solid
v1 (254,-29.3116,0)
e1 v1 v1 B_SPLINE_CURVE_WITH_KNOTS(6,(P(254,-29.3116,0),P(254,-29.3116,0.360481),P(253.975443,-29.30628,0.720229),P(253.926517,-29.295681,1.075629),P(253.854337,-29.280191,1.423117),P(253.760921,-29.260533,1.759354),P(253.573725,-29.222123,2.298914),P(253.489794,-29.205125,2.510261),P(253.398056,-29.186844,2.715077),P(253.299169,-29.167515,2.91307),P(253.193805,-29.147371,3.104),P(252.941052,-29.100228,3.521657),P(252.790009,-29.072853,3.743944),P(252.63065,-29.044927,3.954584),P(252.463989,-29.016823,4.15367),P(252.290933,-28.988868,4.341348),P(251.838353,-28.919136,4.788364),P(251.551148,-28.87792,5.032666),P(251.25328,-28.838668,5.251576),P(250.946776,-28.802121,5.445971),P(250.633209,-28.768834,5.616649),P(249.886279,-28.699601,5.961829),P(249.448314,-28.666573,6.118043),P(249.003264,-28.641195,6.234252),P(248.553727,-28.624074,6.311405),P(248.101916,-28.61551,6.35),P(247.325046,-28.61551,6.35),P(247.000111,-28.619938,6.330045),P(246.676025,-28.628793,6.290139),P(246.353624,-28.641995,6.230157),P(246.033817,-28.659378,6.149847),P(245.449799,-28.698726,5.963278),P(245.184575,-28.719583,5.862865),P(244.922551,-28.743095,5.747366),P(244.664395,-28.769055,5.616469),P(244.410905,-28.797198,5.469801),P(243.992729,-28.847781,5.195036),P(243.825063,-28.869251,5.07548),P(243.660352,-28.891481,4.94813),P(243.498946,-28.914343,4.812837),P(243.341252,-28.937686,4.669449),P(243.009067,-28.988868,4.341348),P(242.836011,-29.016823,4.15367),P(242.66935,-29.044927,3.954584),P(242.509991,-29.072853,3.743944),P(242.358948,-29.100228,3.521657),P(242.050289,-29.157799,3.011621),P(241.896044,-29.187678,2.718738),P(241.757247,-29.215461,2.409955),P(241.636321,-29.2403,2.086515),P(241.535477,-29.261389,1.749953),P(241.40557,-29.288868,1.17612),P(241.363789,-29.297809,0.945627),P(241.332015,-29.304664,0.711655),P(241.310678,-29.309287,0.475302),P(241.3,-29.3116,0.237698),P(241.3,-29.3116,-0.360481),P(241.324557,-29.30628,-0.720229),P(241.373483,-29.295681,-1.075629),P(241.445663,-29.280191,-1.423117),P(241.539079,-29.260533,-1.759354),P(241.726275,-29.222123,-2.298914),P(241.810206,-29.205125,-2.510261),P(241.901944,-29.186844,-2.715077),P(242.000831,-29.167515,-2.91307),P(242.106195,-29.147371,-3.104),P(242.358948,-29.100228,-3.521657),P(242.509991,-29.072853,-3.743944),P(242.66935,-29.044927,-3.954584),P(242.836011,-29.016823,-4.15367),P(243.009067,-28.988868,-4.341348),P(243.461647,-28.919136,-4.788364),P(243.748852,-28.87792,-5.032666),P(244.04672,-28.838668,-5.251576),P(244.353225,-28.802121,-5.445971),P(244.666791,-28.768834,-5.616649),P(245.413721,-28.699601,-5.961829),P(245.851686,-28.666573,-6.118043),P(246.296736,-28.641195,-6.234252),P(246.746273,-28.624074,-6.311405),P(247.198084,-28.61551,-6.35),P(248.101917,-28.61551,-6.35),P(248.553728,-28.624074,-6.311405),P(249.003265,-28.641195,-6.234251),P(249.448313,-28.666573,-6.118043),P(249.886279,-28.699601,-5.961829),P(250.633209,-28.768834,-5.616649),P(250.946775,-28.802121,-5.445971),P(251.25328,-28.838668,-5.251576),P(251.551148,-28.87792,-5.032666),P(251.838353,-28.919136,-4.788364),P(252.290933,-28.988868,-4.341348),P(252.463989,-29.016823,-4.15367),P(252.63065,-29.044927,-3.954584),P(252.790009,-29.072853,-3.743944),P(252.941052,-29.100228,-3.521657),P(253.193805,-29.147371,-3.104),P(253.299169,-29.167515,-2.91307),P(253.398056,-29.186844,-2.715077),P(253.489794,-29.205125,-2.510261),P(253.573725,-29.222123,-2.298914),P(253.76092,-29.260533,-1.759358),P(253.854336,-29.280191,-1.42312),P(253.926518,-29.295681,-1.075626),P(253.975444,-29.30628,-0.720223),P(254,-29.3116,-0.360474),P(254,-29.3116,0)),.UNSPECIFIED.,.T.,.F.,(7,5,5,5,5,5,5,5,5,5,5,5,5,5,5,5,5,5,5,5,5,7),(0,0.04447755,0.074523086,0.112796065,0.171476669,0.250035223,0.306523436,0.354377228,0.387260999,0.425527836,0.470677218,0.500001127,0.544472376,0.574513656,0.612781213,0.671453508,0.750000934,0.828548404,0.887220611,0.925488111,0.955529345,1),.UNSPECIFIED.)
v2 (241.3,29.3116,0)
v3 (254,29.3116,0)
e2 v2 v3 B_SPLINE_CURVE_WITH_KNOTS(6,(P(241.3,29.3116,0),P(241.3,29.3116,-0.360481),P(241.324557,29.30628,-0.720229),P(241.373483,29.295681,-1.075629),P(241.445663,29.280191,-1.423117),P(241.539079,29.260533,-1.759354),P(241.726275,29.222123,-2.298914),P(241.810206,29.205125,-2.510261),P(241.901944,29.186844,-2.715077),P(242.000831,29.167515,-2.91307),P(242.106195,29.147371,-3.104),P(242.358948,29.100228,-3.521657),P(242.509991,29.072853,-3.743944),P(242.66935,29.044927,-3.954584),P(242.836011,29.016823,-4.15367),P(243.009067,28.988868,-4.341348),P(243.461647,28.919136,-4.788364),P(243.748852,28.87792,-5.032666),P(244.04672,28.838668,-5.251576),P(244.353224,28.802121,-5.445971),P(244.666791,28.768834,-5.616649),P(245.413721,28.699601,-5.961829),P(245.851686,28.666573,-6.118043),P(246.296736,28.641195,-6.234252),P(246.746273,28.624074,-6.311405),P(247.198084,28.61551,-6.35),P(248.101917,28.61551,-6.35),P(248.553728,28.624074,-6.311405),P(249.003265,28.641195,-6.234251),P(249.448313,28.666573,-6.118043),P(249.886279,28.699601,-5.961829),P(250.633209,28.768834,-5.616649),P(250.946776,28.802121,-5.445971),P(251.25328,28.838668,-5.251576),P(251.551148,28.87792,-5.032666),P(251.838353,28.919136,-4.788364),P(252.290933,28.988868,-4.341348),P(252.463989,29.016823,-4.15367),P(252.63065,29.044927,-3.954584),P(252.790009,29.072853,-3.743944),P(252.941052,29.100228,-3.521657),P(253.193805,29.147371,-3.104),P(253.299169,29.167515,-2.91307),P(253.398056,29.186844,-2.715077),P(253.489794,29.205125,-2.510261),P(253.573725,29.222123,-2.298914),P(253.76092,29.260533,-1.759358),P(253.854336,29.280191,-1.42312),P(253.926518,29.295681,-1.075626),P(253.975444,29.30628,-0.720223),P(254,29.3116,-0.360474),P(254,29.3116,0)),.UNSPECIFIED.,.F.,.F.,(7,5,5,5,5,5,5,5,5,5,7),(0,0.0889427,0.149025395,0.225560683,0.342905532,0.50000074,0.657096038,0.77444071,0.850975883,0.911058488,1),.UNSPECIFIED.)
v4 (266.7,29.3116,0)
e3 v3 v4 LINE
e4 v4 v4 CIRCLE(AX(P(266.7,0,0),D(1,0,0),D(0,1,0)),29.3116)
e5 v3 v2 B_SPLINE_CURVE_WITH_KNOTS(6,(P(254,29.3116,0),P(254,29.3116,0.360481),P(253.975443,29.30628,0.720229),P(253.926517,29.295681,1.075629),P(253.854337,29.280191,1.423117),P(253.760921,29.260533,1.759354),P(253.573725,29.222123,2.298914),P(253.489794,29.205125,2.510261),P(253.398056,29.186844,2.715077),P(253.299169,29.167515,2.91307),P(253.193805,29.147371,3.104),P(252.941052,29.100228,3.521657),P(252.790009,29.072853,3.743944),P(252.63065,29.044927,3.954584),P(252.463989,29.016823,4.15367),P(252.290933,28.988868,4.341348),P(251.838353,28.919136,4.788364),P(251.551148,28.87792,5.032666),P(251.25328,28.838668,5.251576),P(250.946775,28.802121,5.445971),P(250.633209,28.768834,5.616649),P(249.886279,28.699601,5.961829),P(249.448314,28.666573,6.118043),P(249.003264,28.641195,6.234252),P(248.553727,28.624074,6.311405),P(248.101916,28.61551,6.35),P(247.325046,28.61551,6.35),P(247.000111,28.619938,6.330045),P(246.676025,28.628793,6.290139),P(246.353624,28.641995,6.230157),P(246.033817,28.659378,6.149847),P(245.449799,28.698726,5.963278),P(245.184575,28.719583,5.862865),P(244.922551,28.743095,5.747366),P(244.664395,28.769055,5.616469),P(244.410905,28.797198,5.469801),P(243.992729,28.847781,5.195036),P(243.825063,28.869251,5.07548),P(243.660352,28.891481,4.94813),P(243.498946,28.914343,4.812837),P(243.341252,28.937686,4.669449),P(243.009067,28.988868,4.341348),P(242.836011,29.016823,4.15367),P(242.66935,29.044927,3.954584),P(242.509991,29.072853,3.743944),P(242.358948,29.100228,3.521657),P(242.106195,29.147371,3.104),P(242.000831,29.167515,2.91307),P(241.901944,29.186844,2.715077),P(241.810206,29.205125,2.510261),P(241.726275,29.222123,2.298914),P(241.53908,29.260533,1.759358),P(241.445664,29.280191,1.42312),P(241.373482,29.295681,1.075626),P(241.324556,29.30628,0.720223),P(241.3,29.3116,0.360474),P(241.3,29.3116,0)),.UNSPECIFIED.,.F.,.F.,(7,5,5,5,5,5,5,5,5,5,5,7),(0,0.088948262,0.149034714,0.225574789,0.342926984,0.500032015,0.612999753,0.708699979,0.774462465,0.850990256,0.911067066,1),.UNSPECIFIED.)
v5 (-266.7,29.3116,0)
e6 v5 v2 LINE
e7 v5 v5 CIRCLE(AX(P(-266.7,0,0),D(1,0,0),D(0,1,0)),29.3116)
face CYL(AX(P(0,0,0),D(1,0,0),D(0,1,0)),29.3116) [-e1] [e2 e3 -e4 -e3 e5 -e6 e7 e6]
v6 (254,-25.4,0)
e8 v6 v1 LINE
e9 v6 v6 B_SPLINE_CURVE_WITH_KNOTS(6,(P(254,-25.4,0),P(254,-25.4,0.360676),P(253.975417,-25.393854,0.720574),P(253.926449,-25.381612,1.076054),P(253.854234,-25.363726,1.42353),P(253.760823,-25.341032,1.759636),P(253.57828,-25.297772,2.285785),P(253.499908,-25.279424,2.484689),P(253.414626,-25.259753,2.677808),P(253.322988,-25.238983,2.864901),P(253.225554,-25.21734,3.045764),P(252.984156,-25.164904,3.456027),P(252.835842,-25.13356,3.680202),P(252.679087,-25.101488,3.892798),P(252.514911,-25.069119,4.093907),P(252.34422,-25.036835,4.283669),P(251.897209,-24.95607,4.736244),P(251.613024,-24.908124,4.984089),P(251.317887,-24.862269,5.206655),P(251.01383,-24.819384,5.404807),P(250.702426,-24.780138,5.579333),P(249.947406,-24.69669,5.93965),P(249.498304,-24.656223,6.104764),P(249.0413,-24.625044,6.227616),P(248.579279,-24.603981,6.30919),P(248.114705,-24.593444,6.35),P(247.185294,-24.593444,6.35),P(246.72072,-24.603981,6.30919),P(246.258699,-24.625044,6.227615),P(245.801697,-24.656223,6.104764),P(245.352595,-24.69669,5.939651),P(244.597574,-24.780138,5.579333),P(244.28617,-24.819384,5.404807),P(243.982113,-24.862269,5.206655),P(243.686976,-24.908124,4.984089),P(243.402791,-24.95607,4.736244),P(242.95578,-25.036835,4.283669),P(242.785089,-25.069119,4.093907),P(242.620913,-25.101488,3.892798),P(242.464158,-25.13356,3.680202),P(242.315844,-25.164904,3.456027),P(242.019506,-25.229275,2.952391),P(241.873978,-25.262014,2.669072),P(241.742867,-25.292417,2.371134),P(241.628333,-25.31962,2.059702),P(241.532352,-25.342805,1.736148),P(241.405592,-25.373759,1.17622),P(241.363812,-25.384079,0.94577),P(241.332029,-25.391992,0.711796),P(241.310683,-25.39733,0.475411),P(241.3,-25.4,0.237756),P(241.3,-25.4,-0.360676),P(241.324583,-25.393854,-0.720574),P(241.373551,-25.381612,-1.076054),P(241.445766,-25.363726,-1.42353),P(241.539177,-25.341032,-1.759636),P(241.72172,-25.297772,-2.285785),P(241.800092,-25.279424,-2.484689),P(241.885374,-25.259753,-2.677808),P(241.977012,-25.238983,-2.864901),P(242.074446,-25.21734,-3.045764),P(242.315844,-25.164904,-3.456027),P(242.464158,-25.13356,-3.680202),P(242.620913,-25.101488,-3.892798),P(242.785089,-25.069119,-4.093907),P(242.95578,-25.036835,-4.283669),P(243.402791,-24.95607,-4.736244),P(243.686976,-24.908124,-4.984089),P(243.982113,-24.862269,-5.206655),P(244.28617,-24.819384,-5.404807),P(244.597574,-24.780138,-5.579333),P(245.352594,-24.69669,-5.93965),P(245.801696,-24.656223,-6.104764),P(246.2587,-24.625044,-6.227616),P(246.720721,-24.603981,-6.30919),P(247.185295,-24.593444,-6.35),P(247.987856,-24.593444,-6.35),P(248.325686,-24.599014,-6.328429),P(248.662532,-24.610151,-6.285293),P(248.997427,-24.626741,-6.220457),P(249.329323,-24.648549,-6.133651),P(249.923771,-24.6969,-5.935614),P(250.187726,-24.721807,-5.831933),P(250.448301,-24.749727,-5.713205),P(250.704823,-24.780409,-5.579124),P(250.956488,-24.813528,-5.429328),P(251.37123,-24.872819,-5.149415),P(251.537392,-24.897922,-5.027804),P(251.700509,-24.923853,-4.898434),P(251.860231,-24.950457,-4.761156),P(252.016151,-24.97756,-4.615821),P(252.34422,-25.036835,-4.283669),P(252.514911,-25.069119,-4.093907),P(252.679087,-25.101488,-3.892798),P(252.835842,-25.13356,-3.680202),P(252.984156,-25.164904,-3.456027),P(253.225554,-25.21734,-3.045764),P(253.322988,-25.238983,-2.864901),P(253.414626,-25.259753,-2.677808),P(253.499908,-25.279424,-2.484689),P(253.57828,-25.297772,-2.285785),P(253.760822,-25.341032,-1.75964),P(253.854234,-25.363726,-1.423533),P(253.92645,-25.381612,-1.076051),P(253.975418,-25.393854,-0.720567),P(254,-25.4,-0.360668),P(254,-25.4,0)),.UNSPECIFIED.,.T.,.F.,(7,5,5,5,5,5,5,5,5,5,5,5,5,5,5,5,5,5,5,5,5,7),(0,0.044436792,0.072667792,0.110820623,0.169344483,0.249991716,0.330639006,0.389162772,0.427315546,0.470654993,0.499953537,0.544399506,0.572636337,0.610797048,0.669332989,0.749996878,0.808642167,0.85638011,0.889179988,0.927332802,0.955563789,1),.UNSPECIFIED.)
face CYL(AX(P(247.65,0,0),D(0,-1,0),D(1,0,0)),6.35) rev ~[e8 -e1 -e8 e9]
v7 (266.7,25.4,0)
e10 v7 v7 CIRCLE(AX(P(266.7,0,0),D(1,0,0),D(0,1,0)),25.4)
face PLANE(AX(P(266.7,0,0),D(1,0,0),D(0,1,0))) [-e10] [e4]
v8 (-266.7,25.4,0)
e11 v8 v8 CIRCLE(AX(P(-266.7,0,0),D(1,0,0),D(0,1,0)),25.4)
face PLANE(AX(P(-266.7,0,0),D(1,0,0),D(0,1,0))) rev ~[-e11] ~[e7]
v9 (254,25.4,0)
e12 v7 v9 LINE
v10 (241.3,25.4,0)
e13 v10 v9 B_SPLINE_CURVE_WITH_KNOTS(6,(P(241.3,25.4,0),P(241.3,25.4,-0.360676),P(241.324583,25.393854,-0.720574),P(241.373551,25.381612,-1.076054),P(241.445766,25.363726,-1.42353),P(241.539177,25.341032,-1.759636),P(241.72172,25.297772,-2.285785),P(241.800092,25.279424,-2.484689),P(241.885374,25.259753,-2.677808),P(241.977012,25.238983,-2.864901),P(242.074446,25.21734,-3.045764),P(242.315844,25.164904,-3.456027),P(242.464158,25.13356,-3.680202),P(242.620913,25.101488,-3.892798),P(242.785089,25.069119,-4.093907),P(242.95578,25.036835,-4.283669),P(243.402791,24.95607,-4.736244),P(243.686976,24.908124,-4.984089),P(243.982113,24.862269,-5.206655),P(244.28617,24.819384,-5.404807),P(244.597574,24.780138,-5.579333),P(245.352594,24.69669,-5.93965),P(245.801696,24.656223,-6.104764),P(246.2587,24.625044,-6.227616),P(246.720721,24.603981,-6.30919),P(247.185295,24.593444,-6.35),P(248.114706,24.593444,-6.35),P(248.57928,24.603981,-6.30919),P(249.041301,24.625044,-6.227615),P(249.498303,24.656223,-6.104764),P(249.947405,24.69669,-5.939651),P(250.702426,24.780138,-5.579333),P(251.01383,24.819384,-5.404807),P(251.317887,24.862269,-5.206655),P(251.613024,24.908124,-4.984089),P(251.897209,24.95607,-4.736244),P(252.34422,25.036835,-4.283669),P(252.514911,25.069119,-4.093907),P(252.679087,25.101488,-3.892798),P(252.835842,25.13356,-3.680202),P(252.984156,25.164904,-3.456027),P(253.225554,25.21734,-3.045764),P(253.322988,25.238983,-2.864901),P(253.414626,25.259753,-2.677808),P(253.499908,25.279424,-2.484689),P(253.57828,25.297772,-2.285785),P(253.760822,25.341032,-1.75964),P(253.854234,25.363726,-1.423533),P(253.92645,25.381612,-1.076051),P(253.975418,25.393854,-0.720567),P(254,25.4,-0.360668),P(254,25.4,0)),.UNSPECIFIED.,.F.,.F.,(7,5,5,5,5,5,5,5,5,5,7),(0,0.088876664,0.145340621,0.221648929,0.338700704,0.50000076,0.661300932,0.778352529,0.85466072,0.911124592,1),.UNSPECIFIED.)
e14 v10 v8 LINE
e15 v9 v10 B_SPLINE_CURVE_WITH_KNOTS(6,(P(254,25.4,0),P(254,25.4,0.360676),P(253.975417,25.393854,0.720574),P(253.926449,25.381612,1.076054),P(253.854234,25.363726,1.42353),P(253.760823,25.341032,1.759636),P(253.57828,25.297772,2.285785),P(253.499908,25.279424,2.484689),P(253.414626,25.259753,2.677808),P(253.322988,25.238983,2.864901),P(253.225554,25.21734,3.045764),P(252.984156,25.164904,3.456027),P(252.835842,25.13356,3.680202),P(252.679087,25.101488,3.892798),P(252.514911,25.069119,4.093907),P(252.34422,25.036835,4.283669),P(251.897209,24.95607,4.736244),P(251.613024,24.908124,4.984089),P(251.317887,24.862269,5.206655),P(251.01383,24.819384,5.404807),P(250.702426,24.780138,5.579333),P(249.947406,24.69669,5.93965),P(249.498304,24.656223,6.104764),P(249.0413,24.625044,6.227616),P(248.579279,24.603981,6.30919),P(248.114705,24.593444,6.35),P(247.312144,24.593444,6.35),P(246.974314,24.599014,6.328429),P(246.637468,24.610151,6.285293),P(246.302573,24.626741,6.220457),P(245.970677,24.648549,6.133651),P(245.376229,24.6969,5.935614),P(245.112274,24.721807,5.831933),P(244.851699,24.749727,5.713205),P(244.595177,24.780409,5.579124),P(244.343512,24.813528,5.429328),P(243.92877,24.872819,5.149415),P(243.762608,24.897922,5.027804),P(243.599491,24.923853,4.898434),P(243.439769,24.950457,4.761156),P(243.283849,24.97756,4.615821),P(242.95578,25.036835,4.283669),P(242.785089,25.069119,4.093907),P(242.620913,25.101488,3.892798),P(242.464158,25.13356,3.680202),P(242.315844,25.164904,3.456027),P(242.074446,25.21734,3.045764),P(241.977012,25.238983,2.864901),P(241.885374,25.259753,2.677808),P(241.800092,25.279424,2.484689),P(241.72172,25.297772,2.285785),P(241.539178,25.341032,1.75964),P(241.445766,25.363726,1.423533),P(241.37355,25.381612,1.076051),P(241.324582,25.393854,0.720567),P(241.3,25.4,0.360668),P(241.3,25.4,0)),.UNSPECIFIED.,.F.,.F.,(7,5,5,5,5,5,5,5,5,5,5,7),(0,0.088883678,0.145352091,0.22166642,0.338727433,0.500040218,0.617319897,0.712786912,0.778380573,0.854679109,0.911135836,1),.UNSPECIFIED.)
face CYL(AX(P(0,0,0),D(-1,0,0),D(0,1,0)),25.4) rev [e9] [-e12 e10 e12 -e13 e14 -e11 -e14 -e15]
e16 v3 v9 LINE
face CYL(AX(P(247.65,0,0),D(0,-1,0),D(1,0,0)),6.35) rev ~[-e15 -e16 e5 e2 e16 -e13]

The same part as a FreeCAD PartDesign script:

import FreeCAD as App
import Part
import Sketcher
Q = App.Units.Quantity

doc = App.newDocument("Part")
body = doc.addObject("PartDesign::Body", "Body")

sketch1 = body.newObject("Sketcher::SketchObject", "Sketch")
sketch1.AttachmentSupport = (doc.getObject("YZ_Plane"), [""])
sketch1.MapMode = "FlatFace"
sketch1.addGeometry(Part.Circle(App.Vector(0, 0, 0), App.Vector(0, 0, 1), 29), False)
sketch1.addGeometry(Part.Circle(App.Vector(0, 0, 0), App.Vector(0, 0, 1), 25), False)
sketch1.addConstraint(Sketcher.Constraint("Coincident", 0, 3, -1, 1))
sketch1.addConstraint(Sketcher.Constraint("Coincident", 1, 3, -1, 1))
sketch1.addConstraint(Sketcher.Constraint("Diameter", 1, Q("2 in")))
sketch1.addConstraint(Sketcher.Constraint("Diameter", 0, Q("2.308 in")))
pad1 = body.newObject("PartDesign::Pad", "Pad")
pad1.Profile = sketch1
pad1.Length = Q("21 in")
pad1.Midplane = True

sketch2 = body.newObject("Sketcher::SketchObject", "Sketch001")
sketch2.AttachmentSupport = (doc.getObject("XZ_Plane"), [""])
sketch2.MapMode = "FlatFace"
sketch2.addGeometry(Part.Circle(App.Vector(248, 0, 0), App.Vector(0, 0, 1), 6), False)
sketch2.addConstraint(Sketcher.Constraint("PointOnObject", 0, 3, -1))
sketch2.addConstraint(Sketcher.Constraint("Diameter", 0, Q("0.5 in")))
sketch2.addConstraint(Sketcher.Constraint("DistanceX", -1, 1, 0, 3, Q("9.75 in")))
pocket1 = body.newObject("PartDesign::Pocket", "Pocket")
pocket1.Profile = sketch2
pocket1.Length = Q("3 in")
pocket1.Midplane = True

doc.recompute()
